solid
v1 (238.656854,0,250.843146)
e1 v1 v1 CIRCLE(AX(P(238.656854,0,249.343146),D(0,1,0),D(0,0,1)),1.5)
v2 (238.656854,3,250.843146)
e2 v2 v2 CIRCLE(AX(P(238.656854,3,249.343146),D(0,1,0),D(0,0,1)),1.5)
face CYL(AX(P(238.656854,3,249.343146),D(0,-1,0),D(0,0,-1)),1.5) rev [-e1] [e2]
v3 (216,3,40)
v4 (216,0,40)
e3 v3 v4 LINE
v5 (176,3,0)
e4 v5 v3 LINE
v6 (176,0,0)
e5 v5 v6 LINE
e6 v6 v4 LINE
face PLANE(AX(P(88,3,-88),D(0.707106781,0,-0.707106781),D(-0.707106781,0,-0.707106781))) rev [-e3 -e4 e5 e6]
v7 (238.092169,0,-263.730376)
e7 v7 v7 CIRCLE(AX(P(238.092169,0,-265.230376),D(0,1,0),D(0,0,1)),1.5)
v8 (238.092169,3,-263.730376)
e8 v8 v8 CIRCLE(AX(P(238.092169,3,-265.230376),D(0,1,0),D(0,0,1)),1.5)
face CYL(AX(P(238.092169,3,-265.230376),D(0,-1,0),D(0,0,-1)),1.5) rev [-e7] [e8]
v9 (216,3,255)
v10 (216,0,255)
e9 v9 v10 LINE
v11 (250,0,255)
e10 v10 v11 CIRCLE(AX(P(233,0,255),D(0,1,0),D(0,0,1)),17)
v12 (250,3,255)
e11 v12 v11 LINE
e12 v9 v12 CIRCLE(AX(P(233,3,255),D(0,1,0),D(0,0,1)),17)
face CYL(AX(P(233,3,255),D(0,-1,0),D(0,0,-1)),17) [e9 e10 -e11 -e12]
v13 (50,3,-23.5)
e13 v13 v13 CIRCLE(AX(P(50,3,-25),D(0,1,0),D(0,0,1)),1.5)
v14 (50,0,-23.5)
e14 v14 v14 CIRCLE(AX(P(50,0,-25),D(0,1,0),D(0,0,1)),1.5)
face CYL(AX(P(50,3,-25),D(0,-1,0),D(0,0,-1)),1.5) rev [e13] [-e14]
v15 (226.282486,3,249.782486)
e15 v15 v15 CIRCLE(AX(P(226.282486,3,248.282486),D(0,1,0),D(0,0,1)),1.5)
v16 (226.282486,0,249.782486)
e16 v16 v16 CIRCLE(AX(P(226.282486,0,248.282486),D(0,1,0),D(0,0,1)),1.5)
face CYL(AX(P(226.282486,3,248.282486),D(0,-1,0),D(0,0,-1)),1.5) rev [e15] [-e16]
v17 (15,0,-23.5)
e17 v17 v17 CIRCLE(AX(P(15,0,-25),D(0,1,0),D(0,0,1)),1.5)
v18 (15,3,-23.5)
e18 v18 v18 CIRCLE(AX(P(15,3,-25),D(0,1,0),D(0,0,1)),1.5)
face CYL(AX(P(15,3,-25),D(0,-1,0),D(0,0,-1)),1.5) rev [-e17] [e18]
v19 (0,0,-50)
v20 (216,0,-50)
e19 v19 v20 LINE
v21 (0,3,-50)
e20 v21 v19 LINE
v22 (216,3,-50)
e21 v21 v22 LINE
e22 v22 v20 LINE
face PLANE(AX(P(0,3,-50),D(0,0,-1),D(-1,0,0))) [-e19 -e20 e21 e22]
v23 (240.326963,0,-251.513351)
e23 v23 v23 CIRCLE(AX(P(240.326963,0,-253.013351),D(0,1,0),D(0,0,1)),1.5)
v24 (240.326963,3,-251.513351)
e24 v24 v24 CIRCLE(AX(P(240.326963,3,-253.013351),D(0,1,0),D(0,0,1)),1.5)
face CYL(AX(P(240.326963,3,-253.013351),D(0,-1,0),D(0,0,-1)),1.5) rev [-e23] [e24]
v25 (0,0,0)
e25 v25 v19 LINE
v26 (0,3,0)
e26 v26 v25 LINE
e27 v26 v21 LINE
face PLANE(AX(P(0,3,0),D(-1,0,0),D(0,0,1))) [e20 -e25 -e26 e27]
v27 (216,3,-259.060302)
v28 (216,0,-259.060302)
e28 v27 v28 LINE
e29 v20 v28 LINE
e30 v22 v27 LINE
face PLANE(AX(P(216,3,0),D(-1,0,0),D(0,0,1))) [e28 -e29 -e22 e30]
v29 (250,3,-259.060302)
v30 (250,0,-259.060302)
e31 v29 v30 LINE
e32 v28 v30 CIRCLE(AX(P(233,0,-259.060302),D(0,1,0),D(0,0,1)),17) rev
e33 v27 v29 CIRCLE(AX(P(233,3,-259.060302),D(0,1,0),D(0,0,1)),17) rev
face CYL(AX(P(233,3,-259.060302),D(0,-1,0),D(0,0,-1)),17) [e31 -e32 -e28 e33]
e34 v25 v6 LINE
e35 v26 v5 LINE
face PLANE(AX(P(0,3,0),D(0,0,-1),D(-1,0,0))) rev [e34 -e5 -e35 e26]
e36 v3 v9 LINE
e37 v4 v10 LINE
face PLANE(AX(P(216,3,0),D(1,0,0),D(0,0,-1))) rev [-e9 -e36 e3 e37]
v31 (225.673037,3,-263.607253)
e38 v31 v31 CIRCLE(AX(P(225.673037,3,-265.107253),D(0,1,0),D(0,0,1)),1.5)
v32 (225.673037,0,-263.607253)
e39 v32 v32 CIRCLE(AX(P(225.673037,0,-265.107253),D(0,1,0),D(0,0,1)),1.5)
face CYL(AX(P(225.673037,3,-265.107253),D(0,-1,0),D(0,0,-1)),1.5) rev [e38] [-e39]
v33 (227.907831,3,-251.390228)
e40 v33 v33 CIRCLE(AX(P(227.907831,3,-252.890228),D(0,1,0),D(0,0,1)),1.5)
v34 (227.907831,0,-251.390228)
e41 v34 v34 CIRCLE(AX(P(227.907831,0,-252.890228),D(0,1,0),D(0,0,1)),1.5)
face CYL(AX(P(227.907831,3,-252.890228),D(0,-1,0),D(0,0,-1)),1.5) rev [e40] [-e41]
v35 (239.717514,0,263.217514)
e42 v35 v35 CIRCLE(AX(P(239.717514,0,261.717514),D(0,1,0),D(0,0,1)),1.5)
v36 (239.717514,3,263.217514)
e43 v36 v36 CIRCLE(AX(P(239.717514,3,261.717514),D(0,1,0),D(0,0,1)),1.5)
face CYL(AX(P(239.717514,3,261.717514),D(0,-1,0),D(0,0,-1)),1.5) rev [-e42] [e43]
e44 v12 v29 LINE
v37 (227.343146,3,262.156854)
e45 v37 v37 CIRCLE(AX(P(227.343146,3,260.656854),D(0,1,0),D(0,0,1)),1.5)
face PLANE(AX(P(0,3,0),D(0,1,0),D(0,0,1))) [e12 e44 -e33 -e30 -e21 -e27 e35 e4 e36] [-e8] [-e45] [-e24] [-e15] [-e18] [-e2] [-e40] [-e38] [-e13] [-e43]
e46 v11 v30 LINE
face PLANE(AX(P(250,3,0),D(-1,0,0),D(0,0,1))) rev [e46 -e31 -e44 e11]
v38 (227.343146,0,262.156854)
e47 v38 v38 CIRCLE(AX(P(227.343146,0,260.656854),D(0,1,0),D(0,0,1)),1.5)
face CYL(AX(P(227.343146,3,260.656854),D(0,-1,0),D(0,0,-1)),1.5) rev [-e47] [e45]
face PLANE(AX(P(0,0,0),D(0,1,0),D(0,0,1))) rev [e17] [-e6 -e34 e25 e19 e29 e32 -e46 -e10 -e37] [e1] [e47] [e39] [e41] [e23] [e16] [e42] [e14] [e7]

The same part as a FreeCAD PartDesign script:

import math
import FreeCAD as App
import Part
import Sketcher
Q = App.Units.Quantity

doc = App.newDocument("Part")
params = doc.addObject("Spreadsheet::Sheet", "Params")
for row, (alias, value) in enumerate([
    ("sketch1_diameter", "3 mm"),
    ("sketch1_radius", "17 mm"),
    ("sketch1_width", "176 mm"),
    ("sketch1_width2", "216 mm"),
    ("sketch1_height", "215 mm"),
    ("pad1_length", "3 mm"),
], start=1):
    params.set(f"A{row}", alias)
    params.set(f"B{row}", "=" + value)
    params.setAlias(f"B{row}", alias)

body = doc.addObject("PartDesign::Body", "Body")

# Sketch on XZ plane
sketch1 = body.newObject("Sketcher::SketchObject", "Sketch")
sketch1.AttachmentSupport = (doc.getObject("XZ_Plane"), [""])
sketch1.MapMode = "FlatFace"
sketch1.addGeometry(Part.LineSegment(App.Vector(0, 0, 0), App.Vector(176, 0, 0)), False)
sketch1.addGeometry(Part.LineSegment(App.Vector(176, 0, 0), App.Vector(216, 40, 0)), False)
sketch1.addGeometry(Part.LineSegment(App.Vector(216, 40, 0), App.Vector(216, 255, 0)), False)
sketch1.addGeometry(Part.ArcOfCircle(Part.Circle(App.Vector(233, 255, 0), App.Vector(0, 0, 1), 17), math.radians(0), math.radians(180)), False)
sketch1.addGeometry(Part.LineSegment(App.Vector(250, 255, 0), App.Vector(250, -259.1, 0)), False)
sketch1.addGeometry(Part.ArcOfCircle(Part.Circle(App.Vector(233, -259.1, 0), App.Vector(0, 0, 1), 17), math.radians(180), math.radians(360)), False)
sketch1.addGeometry(Part.LineSegment(App.Vector(216, -259.1, 0), App.Vector(216, -50, 0)), False)
sketch1.addGeometry(Part.LineSegment(App.Vector(216, -50, 0), App.Vector(0, -50, 0)), False)
sketch1.addGeometry(Part.LineSegment(App.Vector(0, -50, 0), App.Vector(0, 0, 0)), False)
sketch1.addGeometry(Part.Circle(App.Vector(227.3, 260.7, 0), App.Vector(0, 0, 1), 1.5), False)
sketch1.addGeometry(Part.Circle(App.Vector(226.3, 248.3, 0), App.Vector(0, 0, 1), 1.5), False)
sketch1.addGeometry(Part.Circle(App.Vector(239.7, 261.7, 0), App.Vector(0, 0, 1), 1.5), False)
sketch1.addGeometry(Part.Circle(App.Vector(238.7, 249.3, 0), App.Vector(0, 0, 1), 1.5), False)
sketch1.addGeometry(Part.Circle(App.Vector(15, -25, 0), App.Vector(0, 0, 1), 1.5), False)
sketch1.addGeometry(Part.Circle(App.Vector(50, -25, 0), App.Vector(0, 0, 1), 1.5), False)
sketch1.addGeometry(Part.Circle(App.Vector(225.7, -265.1, 0), App.Vector(0, 0, 1), 1.5), False)
sketch1.addGeometry(Part.Circle(App.Vector(227.9, -252.9, 0), App.Vector(0, 0, 1), 1.5), False)
sketch1.addGeometry(Part.Circle(App.Vector(240.3, -253, 0), App.Vector(0, 0, 1), 1.5), False)
sketch1.addGeometry(Part.Circle(App.Vector(238.1, -265.2, 0), App.Vector(0, 0, 1), 1.5), False)
sketch1.addConstraint(Sketcher.Constraint("Coincident", 0, 2, 1, 1))
sketch1.addConstraint(Sketcher.Constraint("Coincident", 1, 2, 2, 1))
sketch1.addConstraint(Sketcher.Constraint("Tangent", 2, 2, 3, 2))
sketch1.addConstraint(Sketcher.Constraint("Tangent", 3, 1, 4, 1))
sketch1.addConstraint(Sketcher.Constraint("Tangent", 4, 2, 5, 2))
sketch1.addConstraint(Sketcher.Constraint("Tangent", 5, 1, 6, 1))
sketch1.addConstraint(Sketcher.Constraint("Coincident", 6, 2, 7, 1))
sketch1.addConstraint(Sketcher.Constraint("Coincident", 7, 2, 8, 1))
sketch1.addConstraint(Sketcher.Constraint("Coincident", 8, 2, 0, 1))
sketch1.addConstraint(Sketcher.Constraint("Horizontal", 0))
sketch1.addConstraint(Sketcher.Constraint("Vertical", 2))
sketch1.addConstraint(Sketcher.Constraint("Vertical", 4))
sketch1.addConstraint(Sketcher.Constraint("Vertical", 6))
sketch1.addConstraint(Sketcher.Constraint("Horizontal", 7))
sketch1.addConstraint(Sketcher.Constraint("Vertical", 8))
sketch1.addConstraint(Sketcher.Constraint("Coincident", 8, 2, -1, 1))
sketch1.addConstraint(Sketcher.Constraint("Equal", 3, 5))
sketch1.addConstraint(Sketcher.Constraint("Equal", 9, 10))
sketch1.addConstraint(Sketcher.Constraint("Equal", 10, 11))
sketch1.addConstraint(Sketcher.Constraint("Equal", 11, 12))
sketch1.addConstraint(Sketcher.Constraint("Equal", 12, 13))
sketch1.addConstraint(Sketcher.Constraint("Equal", 13, 14))
sketch1.addConstraint(Sketcher.Constraint("Equal", 14, 15))
sketch1.addConstraint(Sketcher.Constraint("Equal", 15, 16))
sketch1.addConstraint(Sketcher.Constraint("Equal", 16, 17))
sketch1.addConstraint(Sketcher.Constraint("Equal", 17, 18))
sketch1.addConstraint(Sketcher.Constraint("Horizontal", 13, 3, 14, 3))
sketch1.addConstraint(Sketcher.Constraint("Diameter", 9, 3.0))
sketch1.addConstraint(Sketcher.Constraint("Radius", 3, 17.0))
sketch1.addConstraint(Sketcher.Constraint("DistanceX", 0, 1, 0, 2, 176.0))
sketch1.addConstraint(Sketcher.Constraint("DistanceX", 7, 2, 7, 1, 216.0))
sketch1.addConstraint(Sketcher.Constraint("DistanceY", 2, 1, 2, 2, 215.0))
sketch1.addConstraint(Sketcher.Constraint("DistanceY", 8, 1, 8, 2, 50.0))
sketch1.addConstraint(Sketcher.Constraint("Angle", 1, Q("45 deg")))
sketch1.addConstraint(Sketcher.Constraint("DistanceX", -1, 1, 13, 3, 15.0))
sketch1.addConstraint(Sketcher.Constraint("DistanceY", 13, 3, -1, 1, 25.0))
sketch1.addConstraint(Sketcher.Constraint("DistanceX", -1, 1, 14, 3, 50.0))
sketch1.addConstraint(Sketcher.Constraint("DistanceY", 4, 2, 4, 1, 514.060302))
sketch1.addConstraint(Sketcher.Constraint("DistanceY", 15, 3, 12, 3, 514.450399))
sketch1.addConstraint(Sketcher.Constraint("DistanceX", -1, 1, 16, 3, 227.907831))
sketch1.addConstraint(Sketcher.Constraint("DistanceY", 17, 3, -1, 1, 253.013351))
sketch1.addConstraint(Sketcher.Constraint("DistanceX", -1, 1, 18, 3, 238.092169))
sketch1.addConstraint(Sketcher.Constraint("DistanceX", 10, 3, 9, 3, 1.06066))
sketch1.addConstraint(Sketcher.Constraint("DistanceY", 10, 3, 9, 3, 12.374369))
sketch1.addConstraint(Sketcher.Constraint("DistanceX", 9, 3, 11, 3, 12.374369))
sketch1.addConstraint(Sketcher.Constraint("DistanceY", 9, 3, 11, 3, 1.06066))
sketch1.addConstraint(Sketcher.Constraint("DistanceX", 12, 3, 11, 3, 1.06066))
sketch1.addConstraint(Sketcher.Constraint("DistanceY", 12, 3, 11, 3, 12.374369))
sketch1.addConstraint(Sketcher.Constraint("DistanceY", 15, 3, 5, 3, 6.046951))
sketch1.addConstraint(Sketcher.Constraint("DistanceX", 15, 3, 10, 3, 0.609448))
sketch1.addConstraint(Sketcher.Constraint("DistanceX", -1, 1, 9, 3, 227.343146))
sketch1.addConstraint(Sketcher.Constraint("DistanceY", 16, 3, -1, 1, 252.890228))
sketch1.addConstraint(Sketcher.Constraint("DistanceX", -1, 1, 17, 3, 240.326963))
sketch1.addConstraint(Sketcher.Constraint("DistanceY", 18, 3, -1, 1, 265.230376))
sketch1.setExpression("Constraints[27]", "Params.sketch1_diameter")
sketch1.setExpression("Constraints[28]", "Params.sketch1_radius")
sketch1.setExpression("Constraints[29]", "Params.sketch1_width")
sketch1.setExpression("Constraints[30]", "Params.sketch1_width2")
sketch1.setExpression("Constraints[31]", "Params.sketch1_height")
pad1 = body.newObject("PartDesign::Pad", "Pad")
pad1.Profile = sketch1
pad1.setExpression("Length", "Params.pad1_length")
pad1.Reversed = True

doc.recompute()
